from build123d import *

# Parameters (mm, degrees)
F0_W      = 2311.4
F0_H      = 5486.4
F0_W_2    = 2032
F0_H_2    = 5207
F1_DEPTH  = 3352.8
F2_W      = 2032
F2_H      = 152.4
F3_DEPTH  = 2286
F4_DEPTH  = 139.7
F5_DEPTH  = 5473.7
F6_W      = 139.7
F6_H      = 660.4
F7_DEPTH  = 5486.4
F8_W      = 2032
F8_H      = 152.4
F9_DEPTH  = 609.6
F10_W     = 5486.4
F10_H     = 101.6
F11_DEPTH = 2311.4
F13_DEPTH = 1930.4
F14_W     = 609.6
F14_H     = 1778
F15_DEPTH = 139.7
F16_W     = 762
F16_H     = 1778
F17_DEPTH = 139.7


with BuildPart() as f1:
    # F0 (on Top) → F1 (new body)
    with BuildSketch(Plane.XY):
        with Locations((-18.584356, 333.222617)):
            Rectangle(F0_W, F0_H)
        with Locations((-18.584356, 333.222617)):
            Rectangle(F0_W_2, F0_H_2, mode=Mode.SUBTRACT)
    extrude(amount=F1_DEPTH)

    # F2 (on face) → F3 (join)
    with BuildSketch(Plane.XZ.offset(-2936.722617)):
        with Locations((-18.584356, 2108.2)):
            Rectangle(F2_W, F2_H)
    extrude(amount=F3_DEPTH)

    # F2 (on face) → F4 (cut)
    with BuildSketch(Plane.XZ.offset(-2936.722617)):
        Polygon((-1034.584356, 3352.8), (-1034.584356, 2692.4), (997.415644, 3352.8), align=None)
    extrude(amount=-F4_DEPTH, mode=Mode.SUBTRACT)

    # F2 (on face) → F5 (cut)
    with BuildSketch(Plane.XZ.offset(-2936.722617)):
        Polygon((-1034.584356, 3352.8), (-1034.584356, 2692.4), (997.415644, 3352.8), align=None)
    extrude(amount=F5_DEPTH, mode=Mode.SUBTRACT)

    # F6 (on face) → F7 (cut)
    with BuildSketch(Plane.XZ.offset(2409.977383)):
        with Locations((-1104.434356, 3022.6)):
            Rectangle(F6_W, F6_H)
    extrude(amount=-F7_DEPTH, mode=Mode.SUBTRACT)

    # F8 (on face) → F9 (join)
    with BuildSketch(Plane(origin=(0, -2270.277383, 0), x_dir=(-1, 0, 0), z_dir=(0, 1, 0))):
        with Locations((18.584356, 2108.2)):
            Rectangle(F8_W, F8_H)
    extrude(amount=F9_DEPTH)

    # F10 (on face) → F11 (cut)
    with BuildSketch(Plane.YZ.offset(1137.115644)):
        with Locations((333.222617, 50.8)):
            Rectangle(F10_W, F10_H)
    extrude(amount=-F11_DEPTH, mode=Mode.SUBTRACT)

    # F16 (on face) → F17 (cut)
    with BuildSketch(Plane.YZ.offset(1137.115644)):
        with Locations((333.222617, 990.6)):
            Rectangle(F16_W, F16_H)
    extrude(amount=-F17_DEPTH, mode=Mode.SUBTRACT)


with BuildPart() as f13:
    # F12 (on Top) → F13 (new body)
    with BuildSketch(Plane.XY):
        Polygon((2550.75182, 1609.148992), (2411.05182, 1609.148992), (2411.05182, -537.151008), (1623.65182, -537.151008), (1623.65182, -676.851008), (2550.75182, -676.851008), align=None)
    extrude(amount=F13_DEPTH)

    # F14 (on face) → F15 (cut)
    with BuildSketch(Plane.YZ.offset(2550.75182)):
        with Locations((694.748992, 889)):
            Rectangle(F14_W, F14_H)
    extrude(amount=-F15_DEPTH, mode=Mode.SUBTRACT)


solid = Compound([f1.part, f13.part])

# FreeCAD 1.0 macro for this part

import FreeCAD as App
import Part
import Sketcher

V = App.Vector
Q = App.Units.Quantity

doc = App.newDocument("Part")
params = doc.addObject("Spreadsheet::Sheet", "Params")
for row, (alias, value) in enumerate([
    ("sketch1_width", "91 in"),
    ("sketch1_width2", "80 in"),
    ("sketch1_height", "216 in"),
    ("sketch1_height2", "205 in"),
    ("pad1_length", "132 in"),
    ("sketch2_width", "80 in"),
    ("sketch2_height", "6 in"),
    ("pad2_length", "90 in"),
    ("sketch3_width", "80 in"),
    ("sketch3_height", "26 in"),
    ("pocket1_length", "5.5 in"),
    ("sketch4_width", "80 in"),
    ("sketch4_height", "26 in"),
    ("pocket2_length", "215.5 in"),
    ("sketch5_height", "26 in"),
    ("sketch5_width", "5.5 in"),
    ("pocket3_length", "216 in"),
    ("sketch6_width", "80 in"),
    ("sketch6_height", "6 in"),
    ("pad3_length", "24 in"),
    ("sketch7_width", "216 in"),
    ("sketch7_height", "4 in"),
    ("pocket4_length", "91 in"),
    ("sketch8_width", "30 in"),
    ("sketch8_height", "70 in"),
    ("pocket5_length", "5.5 in"),
    ("sketch9_width", "31 in"),
    ("sketch9_height", "90 in"),
    ("sketch9_width2", "5.5 in"),
    ("pad4_length", "76 in"),
    ("sketch10_width", "24 in"),
    ("sketch10_height", "70 in"),
    ("pocket6_length", "5.5 in"),
], start=1):
    params.set(f"A{row}", alias)
    params.set(f"B{row}", "=" + value)
    params.setAlias(f"B{row}", alias)

body = doc.addObject("PartDesign::Body", "Body")

sketch1 = doc.addObject("Sketcher::SketchObject", "Sketch")
body.addObject(sketch1)
sketch1.AttachmentSupport = (doc.XY_Plane, [""])
sketch1.MapMode = "FlatFace"
sketch1.addGeometry(Part.LineSegment(V(-1174, 3076, 0), V(-1174, -2410, 0)), False)
sketch1.addGeometry(Part.LineSegment(V(-1174, -2410, 0), V(1137, -2410, 0)), False)
sketch1.addGeometry(Part.LineSegment(V(1137, -2410, 0), V(1137, 3076, 0)), False)
sketch1.addGeometry(Part.LineSegment(V(1137, 3076, 0), V(-1174, 3076, 0)), False)
sketch1.addGeometry(Part.LineSegment(V(997, -2270, 0), V(-1035, -2270, 0)), False)
sketch1.addGeometry(Part.LineSegment(V(-1035, -2270, 0), V(-1035, 2937, 0)), False)
sketch1.addGeometry(Part.LineSegment(V(-1035, 2937, 0), V(997, 2937, 0)), False)
sketch1.addGeometry(Part.LineSegment(V(997, 2937, 0), V(997, -2270, 0)), False)
sketch1.addConstraint(Sketcher.Constraint("Coincident", 0, 2, 1, 1))
sketch1.addConstraint(Sketcher.Constraint("Coincident", 1, 2, 2, 1))
sketch1.addConstraint(Sketcher.Constraint("Coincident", 2, 2, 3, 1))
sketch1.addConstraint(Sketcher.Constraint("Coincident", 3, 2, 0, 1))
sketch1.addConstraint(Sketcher.Constraint("Coincident", 4, 2, 5, 1))
sketch1.addConstraint(Sketcher.Constraint("Coincident", 5, 2, 6, 1))
sketch1.addConstraint(Sketcher.Constraint("Coincident", 6, 2, 7, 1))
sketch1.addConstraint(Sketcher.Constraint("Coincident", 7, 2, 4, 1))
sketch1.addConstraint(Sketcher.Constraint("Vertical", 0))
sketch1.addConstraint(Sketcher.Constraint("Horizontal", 1))
sketch1.addConstraint(Sketcher.Constraint("Vertical", 2))
sketch1.addConstraint(Sketcher.Constraint("Horizontal", 3))
sketch1.addConstraint(Sketcher.Constraint("Horizontal", 4))
sketch1.addConstraint(Sketcher.Constraint("Vertical", 5))
sketch1.addConstraint(Sketcher.Constraint("Horizontal", 6))
sketch1.addConstraint(Sketcher.Constraint("Vertical", 7))
sketch1.addConstraint(Sketcher.Constraint("DistanceX", 1, 1, 1, 2, Q("91 in")))
sketch1.addConstraint(Sketcher.Constraint("DistanceX", 4, 2, 4, 1, Q("80 in")))
sketch1.addConstraint(Sketcher.Constraint("DistanceY", 0, 2, 0, 1, Q("216 in")))
sketch1.addConstraint(Sketcher.Constraint("DistanceY", 5, 1, 5, 2, Q("205 in")))
sketch1.addConstraint(Sketcher.Constraint("DistanceX", 0, 2, 4, 2, Q("5.5 in")))
sketch1.addConstraint(Sketcher.Constraint("DistanceY", 0, 2, 4, 2, Q("5.5 in")))
sketch1.addConstraint(Sketcher.Constraint("DistanceX", 0, 2, -1, 1, Q("1174.284356 mm")))
sketch1.addConstraint(Sketcher.Constraint("DistanceY", 0, 2, -1, 1, Q("2409.977383 mm")))
sketch1.setExpression("Constraints[16]", "Params.sketch1_width")
sketch1.setExpression("Constraints[17]", "Params.sketch1_width2")
sketch1.setExpression("Constraints[18]", "Params.sketch1_height")
sketch1.setExpression("Constraints[19]", "Params.sketch1_height2")
pad1 = doc.addObject("PartDesign::Pad", "Pad")
body.addObject(pad1)
pad1.Profile = sketch1
pad1.setExpression("Length", "Params.pad1_length")

sketch2 = doc.addObject("Sketcher::SketchObject", "Sketch001")
body.addObject(sketch2)
sketch2.AttachmentSupport = (doc.XZ_Plane, [""])
sketch2.MapMode = "FlatFace"
sketch2.AttachmentOffset = App.Placement(V(0, 0, -2936.722617), App.Rotation())
sketch2.addGeometry(Part.LineSegment(V(-1035, 2184, 0), V(-1035, 2032, 0)), False)
sketch2.addGeometry(Part.LineSegment(V(-1035, 2032, 0), V(997, 2032, 0)), False)
sketch2.addGeometry(Part.LineSegment(V(997, 2032, 0), V(997, 2184, 0)), False)
sketch2.addGeometry(Part.LineSegment(V(997, 2184, 0), V(-1035, 2184, 0)), False)
sketch2.addConstraint(Sketcher.Constraint("Coincident", 0, 2, 1, 1))
sketch2.addConstraint(Sketcher.Constraint("Coincident", 1, 2, 2, 1))
sketch2.addConstraint(Sketcher.Constraint("Coincident", 2, 2, 3, 1))
sketch2.addConstraint(Sketcher.Constraint("Coincident", 3, 2, 0, 1))
sketch2.addConstraint(Sketcher.Constraint("Vertical", 0))
sketch2.addConstraint(Sketcher.Constraint("Horizontal", 1))
sketch2.addConstraint(Sketcher.Constraint("Vertical", 2))
sketch2.addConstraint(Sketcher.Constraint("Horizontal", 3))
sketch2.addConstraint(Sketcher.Constraint("DistanceX", 1, 1, 1, 2, Q("80 in")))
sketch2.addConstraint(Sketcher.Constraint("DistanceY", 0, 2, 0, 1, Q("6 in")))
sketch2.addConstraint(Sketcher.Constraint("DistanceY", -1, 1, 0, 2, Q("80 in")))
sketch2.addConstraint(Sketcher.Constraint("DistanceX", 0, 2, -1, 1, Q("1034.584356 mm")))
sketch2.setExpression("Constraints[8]", "Params.sketch2_width")
sketch2.setExpression("Constraints[9]", "Params.sketch2_height")
pad2 = doc.addObject("PartDesign::Pad", "Pad001")
body.addObject(pad2)
pad2.Profile = sketch2
pad2.setExpression("Length", "Params.pad2_length")

sketch3 = doc.addObject("Sketcher::SketchObject", "Sketch002")
body.addObject(sketch3)
sketch3.AttachmentSupport = (doc.XZ_Plane, [""])
sketch3.MapMode = "FlatFace"
sketch3.AttachmentOffset = App.Placement(V(0, 0, -2936.722617), App.Rotation())
sketch3.addGeometry(Part.LineSegment(V(-1035, 3353, 0), V(-1035, 2692, 0)), False)
sketch3.addGeometry(Part.LineSegment(V(-1035, 2692, 0), V(997, 3353, 0)), False)
sketch3.addGeometry(Part.LineSegment(V(997, 3353, 0), V(-1035, 3353, 0)), False)
sketch3.addConstraint(Sketcher.Constraint("Coincident", 0, 2, 1, 1))
sketch3.addConstraint(Sketcher.Constraint("Coincident", 1, 2, 2, 1))
sketch3.addConstraint(Sketcher.Constraint("Coincident", 2, 2, 0, 1))
sketch3.addConstraint(Sketcher.Constraint("Vertical", 0))
sketch3.addConstraint(Sketcher.Constraint("Horizontal", 2))
sketch3.addConstraint(Sketcher.Constraint("DistanceX", 2, 2, 2, 1, Q("80 in")))
sketch3.addConstraint(Sketcher.Constraint("DistanceY", 0, 2, 0, 1, Q("26 in")))
sketch3.addConstraint(Sketcher.Constraint("DistanceY", -1, 1, 0, 2, Q("106 in")))
sketch3.addConstraint(Sketcher.Constraint("DistanceX", 0, 2, -1, 1, Q("1034.584356 mm")))
sketch3.setExpression("Constraints[5]", "Params.sketch3_width")
sketch3.setExpression("Constraints[6]", "Params.sketch3_height")
pocket1 = doc.addObject("PartDesign::Pocket", "Pocket")
body.addObject(pocket1)
pocket1.Profile = sketch3
pocket1.setExpression("Length", "Params.pocket1_length")

sketch4 = doc.addObject("Sketcher::SketchObject", "Sketch003")
body.addObject(sketch4)
sketch4.AttachmentSupport = (doc.XZ_Plane, [""])
sketch4.MapMode = "FlatFace"
sketch4.AttachmentOffset = App.Placement(V(0, 0, -2936.722617), App.Rotation())
sketch4.addGeometry(Part.LineSegment(V(-1035, 3353, 0), V(-1035, 2692, 0)), False)
sketch4.addGeometry(Part.LineSegment(V(-1035, 2692, 0), V(997, 3353, 0)), False)
sketch4.addGeometry(Part.LineSegment(V(997, 3353, 0), V(-1035, 3353, 0)), False)
sketch4.addConstraint(Sketcher.Constraint("Coincident", 0, 2, 1, 1))
sketch4.addConstraint(Sketcher.Constraint("Coincident", 1, 2, 2, 1))
sketch4.addConstraint(Sketcher.Constraint("Coincident", 2, 2, 0, 1))
sketch4.addConstraint(Sketcher.Constraint("Vertical", 0))
sketch4.addConstraint(Sketcher.Constraint("Horizontal", 2))
sketch4.addConstraint(Sketcher.Constraint("DistanceX", 2, 2, 2, 1, Q("80 in")))
sketch4.addConstraint(Sketcher.Constraint("DistanceY", 0, 2, 0, 1, Q("26 in")))
sketch4.addConstraint(Sketcher.Constraint("DistanceY", -1, 1, 0, 2, Q("106 in")))
sketch4.addConstraint(Sketcher.Constraint("DistanceX", 0, 2, -1, 1, Q("1034.584356 mm")))
sketch4.setExpression("Constraints[5]", "Params.sketch4_width")
sketch4.setExpression("Constraints[6]", "Params.sketch4_height")
pocket2 = doc.addObject("PartDesign::Pocket", "Pocket001")
body.addObject(pocket2)
pocket2.Profile = sketch4
pocket2.setExpression("Length", "Params.pocket2_length")
pocket2.Reversed = True

sketch5 = doc.addObject("Sketcher::SketchObject", "Sketch004")
body.addObject(sketch5)
sketch5.AttachmentSupport = (doc.XZ_Plane, [""])
sketch5.MapMode = "FlatFace"
sketch5.AttachmentOffset = App.Placement(V(0, 0, 2409.977383), App.Rotation())
sketch5.addGeometry(Part.LineSegment(V(-1174.284356, 3352.8, 0), V(-1174.284356, 2692.4, 0)), False)
sketch5.addGeometry(Part.LineSegment(V(-1174.284356, 2692.4, 0), V(-1034.584356, 2692.4, 0)), False)
sketch5.addGeometry(Part.LineSegment(V(-1034.584356, 2692.4, 0), V(-1034.584356, 3352.8, 0)), False)
sketch5.addGeometry(Part.LineSegment(V(-1034.584356, 3352.8, 0), V(-1174.284356, 3352.8, 0)), False)
sketch5.addConstraint(Sketcher.Constraint("Coincident", 0, 2, 1, 1))
sketch5.addConstraint(Sketcher.Constraint("Coincident", 1, 2, 2, 1))
sketch5.addConstraint(Sketcher.Constraint("Coincident", 2, 2, 3, 1))
sketch5.addConstraint(Sketcher.Constraint("Coincident", 3, 2, 0, 1))
sketch5.addConstraint(Sketcher.Constraint("Vertical", 0))
sketch5.addConstraint(Sketcher.Constraint("Horizontal", 1))
sketch5.addConstraint(Sketcher.Constraint("Vertical", 2))
sketch5.addConstraint(Sketcher.Constraint("Horizontal", 3))
sketch5.addConstraint(Sketcher.Constraint("DistanceY", 0, 2, 0, 1, Q("26 in")))
sketch5.addConstraint(Sketcher.Constraint("DistanceX", 1, 1, 1, 2, Q("5.5 in")))
sketch5.addConstraint(Sketcher.Constraint("DistanceY", -1, 1, 0, 2, Q("106 in")))
sketch5.addConstraint(Sketcher.Constraint("DistanceX", 0, 2, -1, 1, Q("1174.284356 mm")))
sketch5.setExpression("Constraints[8]", "Params.sketch5_height")
sketch5.setExpression("Constraints[9]", "Params.sketch5_width")
pocket3 = doc.addObject("PartDesign::Pocket", "Pocket002")
body.addObject(pocket3)
pocket3.Profile = sketch5
pocket3.setExpression("Length", "Params.pocket3_length")

sketch6 = doc.addObject("Sketcher::SketchObject", "Sketch005")
body.addObject(sketch6)
sketch6.AttachmentSupport = (doc.XZ_Plane, [""])
sketch6.MapMode = "FlatFace"
sketch6.AttachmentOffset = App.Placement(V(0, 0, 2270.277383), App.Rotation())
sketch6.addGeometry(Part.LineSegment(V(997, 2184, 0), V(997, 2032, 0)), False)
sketch6.addGeometry(Part.LineSegment(V(997, 2032, 0), V(-1035, 2032, 0)), False)
sketch6.addGeometry(Part.LineSegment(V(-1035, 2032, 0), V(-1035, 2184, 0)), False)
sketch6.addGeometry(Part.LineSegment(V(-1035, 2184, 0), V(997, 2184, 0)), False)
sketch6.addConstraint(Sketcher.Constraint("Coincident", 0, 2, 1, 1))
sketch6.addConstraint(Sketcher.Constraint("Coincident", 1, 2, 2, 1))
sketch6.addConstraint(Sketcher.Constraint("Coincident", 2, 2, 3, 1))
sketch6.addConstraint(Sketcher.Constraint("Coincident", 3, 2, 0, 1))
sketch6.addConstraint(Sketcher.Constraint("Vertical", 0))
sketch6.addConstraint(Sketcher.Constraint("Horizontal", 1))
sketch6.addConstraint(Sketcher.Constraint("Vertical", 2))
sketch6.addConstraint(Sketcher.Constraint("Horizontal", 3))
sketch6.addConstraint(Sketcher.Constraint("DistanceX", 1, 2, 1, 1, Q("80 in")))
sketch6.addConstraint(Sketcher.Constraint("DistanceY", 0, 2, 0, 1, Q("6 in")))
sketch6.addConstraint(Sketcher.Constraint("DistanceY", -1, 1, 0, 2, Q("80 in")))
sketch6.addConstraint(Sketcher.Constraint("DistanceX", -1, 1, 0, 2, Q("997.415644 mm")))
sketch6.setExpression("Constraints[8]", "Params.sketch6_width")
sketch6.setExpression("Constraints[9]", "Params.sketch6_height")
pad3 = doc.addObject("PartDesign::Pad", "Pad002")
body.addObject(pad3)
pad3.Profile = sketch6
pad3.setExpression("Length", "Params.pad3_length")
pad3.Reversed = True

sketch7 = doc.addObject("Sketcher::SketchObject", "Sketch006")
body.addObject(sketch7)
sketch7.AttachmentSupport = (doc.YZ_Plane, [""])
sketch7.MapMode = "FlatFace"
sketch7.AttachmentOffset = App.Placement(V(0, 0, 1137.115644), App.Rotation())
sketch7.addGeometry(Part.LineSegment(V(-2410, 102, 0), V(-2410, 0, 0)), False)
sketch7.addGeometry(Part.LineSegment(V(-2410, 0, 0), V(3076, 0, 0)), False)
sketch7.addGeometry(Part.LineSegment(V(3076, 0, 0), V(3076, 102, 0)), False)
sketch7.addGeometry(Part.LineSegment(V(3076, 102, 0), V(-2410, 102, 0)), False)
sketch7.addConstraint(Sketcher.Constraint("Coincident", 0, 2, 1, 1))
sketch7.addConstraint(Sketcher.Constraint("Coincident", 1, 2, 2, 1))
sketch7.addConstraint(Sketcher.Constraint("Coincident", 2, 2, 3, 1))
sketch7.addConstraint(Sketcher.Constraint("Coincident", 3, 2, 0, 1))
sketch7.addConstraint(Sketcher.Constraint("Vertical", 0))
sketch7.addConstraint(Sketcher.Constraint("Horizontal", 1))
sketch7.addConstraint(Sketcher.Constraint("Vertical", 2))
sketch7.addConstraint(Sketcher.Constraint("Horizontal", 3))
sketch7.addConstraint(Sketcher.Constraint("PointOnObject", 0, 2, -1))
sketch7.addConstraint(Sketcher.Constraint("DistanceX", 1, 1, 1, 2, Q("216 in")))
sketch7.addConstraint(Sketcher.Constraint("DistanceY", 0, 2, 0, 1, Q("4 in")))
sketch7.addConstraint(Sketcher.Constraint("DistanceX", 0, 2, -1, 1, Q("2409.977383 mm")))
sketch7.setExpression("Constraints[9]", "Params.sketch7_width")
sketch7.setExpression("Constraints[10]", "Params.sketch7_height")
pocket4 = doc.addObject("PartDesign::Pocket", "Pocket003")
body.addObject(pocket4)
pocket4.Profile = sketch7
pocket4.setExpression("Length", "Params.pocket4_length")

sketch8 = doc.addObject("Sketcher::SketchObject", "Sketch007")
body.addObject(sketch8)
sketch8.AttachmentSupport = (doc.YZ_Plane, [""])
sketch8.MapMode = "FlatFace"
sketch8.AttachmentOffset = App.Placement(V(0, 0, 1137.115644), App.Rotation())
sketch8.addGeometry(Part.LineSegment(V(-48, 1880, 0), V(-48, 102, 0)), False)
sketch8.addGeometry(Part.LineSegment(V(-48, 102, 0), V(714, 102, 0)), False)
sketch8.addGeometry(Part.LineSegment(V(714, 102, 0), V(714, 1880, 0)), False)
sketch8.addGeometry(Part.LineSegment(V(714, 1880, 0), V(-48, 1880, 0)), False)
sketch8.addConstraint(Sketcher.Constraint("Coincident", 0, 2, 1, 1))
sketch8.addConstraint(Sketcher.Constraint("Coincident", 1, 2, 2, 1))
sketch8.addConstraint(Sketcher.Constraint("Coincident", 2, 2, 3, 1))
sketch8.addConstraint(Sketcher.Constraint("Coincident", 3, 2, 0, 1))
sketch8.addConstraint(Sketcher.Constraint("Vertical", 0))
sketch8.addConstraint(Sketcher.Constraint("Horizontal", 1))
sketch8.addConstraint(Sketcher.Constraint("Vertical", 2))
sketch8.addConstraint(Sketcher.Constraint("Horizontal", 3))
sketch8.addConstraint(Sketcher.Constraint("DistanceX", 1, 1, 1, 2, Q("30 in")))
sketch8.addConstraint(Sketcher.Constraint("DistanceY", 0, 2, 0, 1, Q("70 in")))
sketch8.addConstraint(Sketcher.Constraint("DistanceY", -1, 1, 0, 2, Q("4 in")))
sketch8.addConstraint(Sketcher.Constraint("DistanceX", 0, 2, -1, 1, Q("47.777383 mm")))
sketch8.setExpression("Constraints[8]", "Params.sketch8_width")
sketch8.setExpression("Constraints[9]", "Params.sketch8_height")
pocket5 = doc.addObject("PartDesign::Pocket", "Pocket004")
body.addObject(pocket5)
pocket5.Profile = sketch8
pocket5.setExpression("Length", "Params.pocket5_length")
body2 = doc.addObject("PartDesign::Body", "Body001")

sketch9 = doc.addObject("Sketcher::SketchObject", "Sketch008")
body2.addObject(sketch9)
sketch9.AttachmentSupport = (doc.getObject("XY_Plane001"), [""])
sketch9.MapMode = "FlatFace"
sketch9.addGeometry(Part.LineSegment(V(2551, 1609, 0), V(2411, 1609, 0)), False)
sketch9.addGeometry(Part.LineSegment(V(2411, 1609, 0), V(2411, -537, 0)), False)
sketch9.addGeometry(Part.LineSegment(V(2411, -537, 0), V(1624, -537, 0)), False)
sketch9.addGeometry(Part.LineSegment(V(1624, -537, 0), V(1624, -677, 0)), False)
sketch9.addGeometry(Part.LineSegment(V(1624, -677, 0), V(2551, -677, 0)), False)
sketch9.addGeometry(Part.LineSegment(V(2551, -677, 0), V(2551, 1609, 0)), False)
sketch9.addConstraint(Sketcher.Constraint("Coincident", 0, 2, 1, 1))
sketch9.addConstraint(Sketcher.Constraint("Coincident", 1, 2, 2, 1))
sketch9.addConstraint(Sketcher.Constraint("Coincident", 2, 2, 3, 1))
sketch9.addConstraint(Sketcher.Constraint("Coincident", 3, 2, 4, 1))
sketch9.addConstraint(Sketcher.Constraint("Coincident", 4, 2, 5, 1))
sketch9.addConstraint(Sketcher.Constraint("Coincident", 5, 2, 0, 1))
sketch9.addConstraint(Sketcher.Constraint("Horizontal", 0))
sketch9.addConstraint(Sketcher.Constraint("Vertical", 1))
sketch9.addConstraint(Sketcher.Constraint("Horizontal", 2))
sketch9.addConstraint(Sketcher.Constraint("Vertical", 3))
sketch9.addConstraint(Sketcher.Constraint("Horizontal", 4))
sketch9.addConstraint(Sketcher.Constraint("Vertical", 5))
sketch9.addConstraint(Sketcher.Constraint("Equal", 0, 3))
sketch9.addConstraint(Sketcher.Constraint("DistanceX", 2, 2, 2, 1, Q("31 in")))
sketch9.addConstraint(Sketcher.Constraint("DistanceY", 5, 1, 5, 2, Q("90 in")))
sketch9.addConstraint(Sketcher.Constraint("DistanceX", 0, 2, 0, 1, Q("5.5 in")))
sketch9.addConstraint(Sketcher.Constraint("DistanceX", -1, 1, 0, 2, Q("94.9233 in")))
sketch9.addConstraint(Sketcher.Constraint("DistanceY", -1, 1, 0, 2, Q("1609.148992 mm")))
sketch9.setExpression("Constraints[13]", "Params.sketch9_width")
sketch9.setExpression("Constraints[14]", "Params.sketch9_height")
sketch9.setExpression("Constraints[15]", "Params.sketch9_width2")
pad4 = doc.addObject("PartDesign::Pad", "Pad003")
body2.addObject(pad4)
pad4.Profile = sketch9
pad4.setExpression("Length", "Params.pad4_length")

sketch10 = doc.addObject("Sketcher::SketchObject", "Sketch009")
body2.addObject(sketch10)
sketch10.AttachmentSupport = (doc.getObject("YZ_Plane001"), [""])
sketch10.MapMode = "FlatFace"
sketch10.AttachmentOffset = App.Placement(V(0, 0, 100.4233 * 25.4), App.Rotation())
sketch10.addGeometry(Part.LineSegment(V(390, 1778, 0), V(390, 0, 0)), False)
sketch10.addGeometry(Part.LineSegment(V(390, 0, 0), V(1000, 0, 0)), False)
sketch10.addGeometry(Part.LineSegment(V(1000, 0, 0), V(1000, 1778, 0)), False)
sketch10.addGeometry(Part.LineSegment(V(1000, 1778, 0), V(390, 1778, 0)), False)
sketch10.addConstraint(Sketcher.Constraint("Coincident", 0, 2, 1, 1))
sketch10.addConstraint(Sketcher.Constraint("Coincident", 1, 2, 2, 1))
sketch10.addConstraint(Sketcher.Constraint("Coincident", 2, 2, 3, 1))
sketch10.addConstraint(Sketcher.Constraint("Coincident", 3, 2, 0, 1))
sketch10.addConstraint(Sketcher.Constraint("Vertical", 0))
sketch10.addConstraint(Sketcher.Constraint("Horizontal", 1))
sketch10.addConstraint(Sketcher.Constraint("Vertical", 2))
sketch10.addConstraint(Sketcher.Constraint("Horizontal", 3))
sketch10.addConstraint(Sketcher.Constraint("PointOnObject", 0, 2, -1))
sketch10.addConstraint(Sketcher.Constraint("DistanceX", 1, 1, 1, 2, Q("24 in")))
sketch10.addConstraint(Sketcher.Constraint("DistanceY", 0, 2, 0, 1, Q("70 in")))
sketch10.addConstraint(Sketcher.Constraint("DistanceX", -1, 1, 0, 2, Q("389.948992 mm")))
sketch10.setExpression("Constraints[9]", "Params.sketch10_width")
sketch10.setExpression("Constraints[10]", "Params.sketch10_height")
pocket6 = doc.addObject("PartDesign::Pocket", "Pocket005")
body2.addObject(pocket6)
pocket6.Profile = sketch10
pocket6.setExpression("Length", "Params.pocket6_length")

doc.recompute()
